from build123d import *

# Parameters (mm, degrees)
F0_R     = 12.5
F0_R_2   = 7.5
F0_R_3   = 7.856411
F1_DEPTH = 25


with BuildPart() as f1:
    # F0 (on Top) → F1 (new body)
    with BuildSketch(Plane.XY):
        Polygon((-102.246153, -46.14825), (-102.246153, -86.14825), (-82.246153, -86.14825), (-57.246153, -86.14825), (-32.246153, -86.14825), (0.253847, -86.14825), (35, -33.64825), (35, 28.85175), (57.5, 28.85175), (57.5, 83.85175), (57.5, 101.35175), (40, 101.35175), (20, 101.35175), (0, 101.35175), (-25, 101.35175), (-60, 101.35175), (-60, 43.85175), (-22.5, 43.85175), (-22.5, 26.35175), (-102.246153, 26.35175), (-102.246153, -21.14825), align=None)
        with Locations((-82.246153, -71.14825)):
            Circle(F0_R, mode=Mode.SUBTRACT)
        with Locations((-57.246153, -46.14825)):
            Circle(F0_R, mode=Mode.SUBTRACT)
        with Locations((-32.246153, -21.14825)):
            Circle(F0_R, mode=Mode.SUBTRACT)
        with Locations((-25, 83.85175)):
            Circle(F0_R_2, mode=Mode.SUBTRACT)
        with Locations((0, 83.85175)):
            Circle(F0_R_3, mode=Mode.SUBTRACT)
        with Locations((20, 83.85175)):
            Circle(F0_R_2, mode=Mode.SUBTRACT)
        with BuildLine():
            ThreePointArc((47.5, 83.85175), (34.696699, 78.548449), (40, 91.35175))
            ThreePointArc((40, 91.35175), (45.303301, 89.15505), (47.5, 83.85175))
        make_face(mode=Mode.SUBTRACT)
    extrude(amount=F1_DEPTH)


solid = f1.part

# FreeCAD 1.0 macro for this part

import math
import FreeCAD as App
import Part
import Sketcher
from FreeCAD import Vector

doc = App.newDocument("Part")
body = doc.addObject("PartDesign::Body", "Body")

sketch1 = body.newObject("Sketcher::SketchObject", "Sketch")
sketch1.AttachmentSupport = (doc.getObject("XY_Plane"), [""])
sketch1.MapMode = "FlatFace"
sketch1.addGeometry(Part.LineSegment(Vector(-102, -86, 0), Vector(0, -86, 0)), False)
sketch1.addGeometry(Part.LineSegment(Vector(0, -86, 0), Vector(35, -34, 0)), False)
sketch1.addGeometry(Part.LineSegment(Vector(35, -34, 0), Vector(35, 29, 0)), False)
sketch1.addGeometry(Part.LineSegment(Vector(35, 29, 0), Vector(58, 29, 0)), False)
sketch1.addGeometry(Part.LineSegment(Vector(58, 29, 0), Vector(58, 101, 0)), False)
sketch1.addGeometry(Part.LineSegment(Vector(58, 101, 0), Vector(-60, 101, 0)), False)
sketch1.addGeometry(Part.LineSegment(Vector(-60, 101, 0), Vector(-60, 44, 0)), False)
sketch1.addGeometry(Part.LineSegment(Vector(-60, 44, 0), Vector(-22, 44, 0)), False)
sketch1.addGeometry(Part.LineSegment(Vector(-22, 44, 0), Vector(-22, 26, 0)), False)
sketch1.addGeometry(Part.LineSegment(Vector(-22, 26, 0), Vector(-102, 26, 0)), False)
sketch1.addGeometry(Part.LineSegment(Vector(-102, 26, 0), Vector(-102, -86, 0)), False)
sketch1.addGeometry(Part.Circle(Vector(-82, -71, 0), Vector(0, 0, 1), 12), False)
sketch1.addGeometry(Part.Circle(Vector(-57, -46, 0), Vector(0, 0, 1), 12), False)
sketch1.addGeometry(Part.Circle(Vector(-32, -21, 0), Vector(0, 0, 1), 12), False)
sketch1.addGeometry(Part.Circle(Vector(-25, 84, 0), Vector(0, 0, 1), 8), False)
sketch1.addGeometry(Part.Circle(Vector(0, 84, 0), Vector(0, 0, 1), 8), False)
sketch1.addGeometry(Part.Circle(Vector(20, 84, 0), Vector(0, 0, 1), 8), False)
sketch1.addGeometry(Part.ArcOfCircle(Part.Circle(Vector(40, 84, 0), Vector(0, 0, 1), 8), math.radians(0), math.radians(90)), False)
sketch1.addGeometry(Part.ArcOfCircle(Part.Circle(Vector(40, 84, 0), Vector(0, 0, 1), 8), math.radians(90), math.radians(360)), False)
sketch1.addConstraint(Sketcher.Constraint("Coincident", 0, 2, 1, 1))
sketch1.addConstraint(Sketcher.Constraint("Coincident", 1, 2, 2, 1))
sketch1.addConstraint(Sketcher.Constraint("Coincident", 2, 2, 3, 1))
sketch1.addConstraint(Sketcher.Constraint("Coincident", 3, 2, 4, 1))
sketch1.addConstraint(Sketcher.Constraint("Coincident", 4, 2, 5, 1))
sketch1.addConstraint(Sketcher.Constraint("Coincident", 5, 2, 6, 1))
sketch1.addConstraint(Sketcher.Constraint("Coincident", 6, 2, 7, 1))
sketch1.addConstraint(Sketcher.Constraint("Coincident", 7, 2, 8, 1))
sketch1.addConstraint(Sketcher.Constraint("Coincident", 8, 2, 9, 1))
sketch1.addConstraint(Sketcher.Constraint("Coincident", 9, 2, 10, 1))
sketch1.addConstraint(Sketcher.Constraint("Coincident", 10, 2, 0, 1))
sketch1.addConstraint(Sketcher.Constraint("Tangent", 17, 1, 18, 2))
sketch1.addConstraint(Sketcher.Constraint("Coincident", 18, 1, 17, 2))
sketch1.addConstraint(Sketcher.Constraint("Horizontal", 0))
sketch1.addConstraint(Sketcher.Constraint("Vertical", 2))
sketch1.addConstraint(Sketcher.Constraint("Horizontal", 3))
sketch1.addConstraint(Sketcher.Constraint("Vertical", 4))
sketch1.addConstraint(Sketcher.Constraint("Horizontal", 5))
sketch1.addConstraint(Sketcher.Constraint("Vertical", 6))
sketch1.addConstraint(Sketcher.Constraint("Horizontal", 7))
sketch1.addConstraint(Sketcher.Constraint("Vertical", 8))
sketch1.addConstraint(Sketcher.Constraint("Horizontal", 9))
sketch1.addConstraint(Sketcher.Constraint("Vertical", 10))
sketch1.addConstraint(Sketcher.Constraint("Equal", 11, 12))
sketch1.addConstraint(Sketcher.Constraint("Equal", 12, 13))
sketch1.addConstraint(Sketcher.Constraint("Equal", 14, 16))
sketch1.addConstraint(Sketcher.Constraint("Equal", 16, 17))
sketch1.addConstraint(Sketcher.Constraint("PointOnObject", 15, 3, -2))
sketch1.addConstraint(Sketcher.Constraint("Horizontal", 14, 3, 15, 3))
sketch1.addConstraint(Sketcher.Constraint("Horizontal", 15, 3, 16, 3))
sketch1.addConstraint(Sketcher.Constraint("Horizontal", 16, 3, 17, 3))
sketch1.addConstraint(Sketcher.Constraint("Horizontal", 18, 3, 17, 1))
sketch1.addConstraint(Sketcher.Constraint("Vertical", 17, 3, 18, 1))
sketch1.addConstraint(Sketcher.Constraint("Diameter", 11, 25.0))
sketch1.addConstraint(Sketcher.Constraint("Diameter", 14, 15.0))
sketch1.addConstraint(Sketcher.Constraint("DistanceX", 0, 1, 0, 2, 102.5))
sketch1.addConstraint(Sketcher.Constraint("DistanceX", 3, 1, 3, 2, 22.5))
sketch1.addConstraint(Sketcher.Constraint("DistanceX", 5, 2, 5, 1, 117.5))
sketch1.addConstraint(Sketcher.Constraint("DistanceX", 7, 1, 7, 2, 37.5))
sketch1.addConstraint(Sketcher.Constraint("DistanceY", 2, 1, 2, 2, 62.5))
sketch1.addConstraint(Sketcher.Constraint("DistanceY", 4, 1, 4, 2, 72.5))
sketch1.addConstraint(Sketcher.Constraint("DistanceY", 6, 2, 6, 1, 57.5))
sketch1.addConstraint(Sketcher.Constraint("DistanceY", 8, 2, 8, 1, 17.5))
sketch1.addConstraint(Sketcher.Constraint("DistanceY", 10, 2, 10, 1, 112.5))
sketch1.addConstraint(Sketcher.Constraint("DistanceX", 14, 3, -1, 1, 25.0))
sketch1.addConstraint(Sketcher.Constraint("DistanceX", -1, 1, 16, 3, 20.0))
sketch1.addConstraint(Sketcher.Constraint("DistanceX", -1, 1, 17, 3, 39.999999))
sketch1.addConstraint(Sketcher.Constraint("DistanceX", -1, 1, 1, 2, 35.0))
sketch1.addConstraint(Sketcher.Constraint("DistanceX", 11, 3, 12, 3, 25.0))
sketch1.addConstraint(Sketcher.Constraint("DistanceY", 11, 3, 12, 3, 25.0))
sketch1.addConstraint(Sketcher.Constraint("DistanceX", 12, 3, 13, 3, 25.0))
sketch1.addConstraint(Sketcher.Constraint("DistanceY", 12, 3, 13, 3, 25.0))
sketch1.addConstraint(Sketcher.Constraint("DistanceY", 13, 3, 14, 3, 105.0))
sketch1.addConstraint(Sketcher.Constraint("DistanceY", 0, 2, 12, 3, 40.0))
sketch1.addConstraint(Sketcher.Constraint("DistanceX", 9, 2, 13, 3, 70.0))
sketch1.addConstraint(Sketcher.Constraint("Diameter", 15, 15.712822))
sketch1.addConstraint(Sketcher.Constraint("DistanceX", 9, 2, 9, 1, 79.746153))
sketch1.addConstraint(Sketcher.Constraint("DistanceY", 11, 3, -1, 1, 71.14825))
pad1 = body.newObject("PartDesign::Pad", "Pad")
pad1.Profile = sketch1
pad1.Length = 25

doc.recompute()
